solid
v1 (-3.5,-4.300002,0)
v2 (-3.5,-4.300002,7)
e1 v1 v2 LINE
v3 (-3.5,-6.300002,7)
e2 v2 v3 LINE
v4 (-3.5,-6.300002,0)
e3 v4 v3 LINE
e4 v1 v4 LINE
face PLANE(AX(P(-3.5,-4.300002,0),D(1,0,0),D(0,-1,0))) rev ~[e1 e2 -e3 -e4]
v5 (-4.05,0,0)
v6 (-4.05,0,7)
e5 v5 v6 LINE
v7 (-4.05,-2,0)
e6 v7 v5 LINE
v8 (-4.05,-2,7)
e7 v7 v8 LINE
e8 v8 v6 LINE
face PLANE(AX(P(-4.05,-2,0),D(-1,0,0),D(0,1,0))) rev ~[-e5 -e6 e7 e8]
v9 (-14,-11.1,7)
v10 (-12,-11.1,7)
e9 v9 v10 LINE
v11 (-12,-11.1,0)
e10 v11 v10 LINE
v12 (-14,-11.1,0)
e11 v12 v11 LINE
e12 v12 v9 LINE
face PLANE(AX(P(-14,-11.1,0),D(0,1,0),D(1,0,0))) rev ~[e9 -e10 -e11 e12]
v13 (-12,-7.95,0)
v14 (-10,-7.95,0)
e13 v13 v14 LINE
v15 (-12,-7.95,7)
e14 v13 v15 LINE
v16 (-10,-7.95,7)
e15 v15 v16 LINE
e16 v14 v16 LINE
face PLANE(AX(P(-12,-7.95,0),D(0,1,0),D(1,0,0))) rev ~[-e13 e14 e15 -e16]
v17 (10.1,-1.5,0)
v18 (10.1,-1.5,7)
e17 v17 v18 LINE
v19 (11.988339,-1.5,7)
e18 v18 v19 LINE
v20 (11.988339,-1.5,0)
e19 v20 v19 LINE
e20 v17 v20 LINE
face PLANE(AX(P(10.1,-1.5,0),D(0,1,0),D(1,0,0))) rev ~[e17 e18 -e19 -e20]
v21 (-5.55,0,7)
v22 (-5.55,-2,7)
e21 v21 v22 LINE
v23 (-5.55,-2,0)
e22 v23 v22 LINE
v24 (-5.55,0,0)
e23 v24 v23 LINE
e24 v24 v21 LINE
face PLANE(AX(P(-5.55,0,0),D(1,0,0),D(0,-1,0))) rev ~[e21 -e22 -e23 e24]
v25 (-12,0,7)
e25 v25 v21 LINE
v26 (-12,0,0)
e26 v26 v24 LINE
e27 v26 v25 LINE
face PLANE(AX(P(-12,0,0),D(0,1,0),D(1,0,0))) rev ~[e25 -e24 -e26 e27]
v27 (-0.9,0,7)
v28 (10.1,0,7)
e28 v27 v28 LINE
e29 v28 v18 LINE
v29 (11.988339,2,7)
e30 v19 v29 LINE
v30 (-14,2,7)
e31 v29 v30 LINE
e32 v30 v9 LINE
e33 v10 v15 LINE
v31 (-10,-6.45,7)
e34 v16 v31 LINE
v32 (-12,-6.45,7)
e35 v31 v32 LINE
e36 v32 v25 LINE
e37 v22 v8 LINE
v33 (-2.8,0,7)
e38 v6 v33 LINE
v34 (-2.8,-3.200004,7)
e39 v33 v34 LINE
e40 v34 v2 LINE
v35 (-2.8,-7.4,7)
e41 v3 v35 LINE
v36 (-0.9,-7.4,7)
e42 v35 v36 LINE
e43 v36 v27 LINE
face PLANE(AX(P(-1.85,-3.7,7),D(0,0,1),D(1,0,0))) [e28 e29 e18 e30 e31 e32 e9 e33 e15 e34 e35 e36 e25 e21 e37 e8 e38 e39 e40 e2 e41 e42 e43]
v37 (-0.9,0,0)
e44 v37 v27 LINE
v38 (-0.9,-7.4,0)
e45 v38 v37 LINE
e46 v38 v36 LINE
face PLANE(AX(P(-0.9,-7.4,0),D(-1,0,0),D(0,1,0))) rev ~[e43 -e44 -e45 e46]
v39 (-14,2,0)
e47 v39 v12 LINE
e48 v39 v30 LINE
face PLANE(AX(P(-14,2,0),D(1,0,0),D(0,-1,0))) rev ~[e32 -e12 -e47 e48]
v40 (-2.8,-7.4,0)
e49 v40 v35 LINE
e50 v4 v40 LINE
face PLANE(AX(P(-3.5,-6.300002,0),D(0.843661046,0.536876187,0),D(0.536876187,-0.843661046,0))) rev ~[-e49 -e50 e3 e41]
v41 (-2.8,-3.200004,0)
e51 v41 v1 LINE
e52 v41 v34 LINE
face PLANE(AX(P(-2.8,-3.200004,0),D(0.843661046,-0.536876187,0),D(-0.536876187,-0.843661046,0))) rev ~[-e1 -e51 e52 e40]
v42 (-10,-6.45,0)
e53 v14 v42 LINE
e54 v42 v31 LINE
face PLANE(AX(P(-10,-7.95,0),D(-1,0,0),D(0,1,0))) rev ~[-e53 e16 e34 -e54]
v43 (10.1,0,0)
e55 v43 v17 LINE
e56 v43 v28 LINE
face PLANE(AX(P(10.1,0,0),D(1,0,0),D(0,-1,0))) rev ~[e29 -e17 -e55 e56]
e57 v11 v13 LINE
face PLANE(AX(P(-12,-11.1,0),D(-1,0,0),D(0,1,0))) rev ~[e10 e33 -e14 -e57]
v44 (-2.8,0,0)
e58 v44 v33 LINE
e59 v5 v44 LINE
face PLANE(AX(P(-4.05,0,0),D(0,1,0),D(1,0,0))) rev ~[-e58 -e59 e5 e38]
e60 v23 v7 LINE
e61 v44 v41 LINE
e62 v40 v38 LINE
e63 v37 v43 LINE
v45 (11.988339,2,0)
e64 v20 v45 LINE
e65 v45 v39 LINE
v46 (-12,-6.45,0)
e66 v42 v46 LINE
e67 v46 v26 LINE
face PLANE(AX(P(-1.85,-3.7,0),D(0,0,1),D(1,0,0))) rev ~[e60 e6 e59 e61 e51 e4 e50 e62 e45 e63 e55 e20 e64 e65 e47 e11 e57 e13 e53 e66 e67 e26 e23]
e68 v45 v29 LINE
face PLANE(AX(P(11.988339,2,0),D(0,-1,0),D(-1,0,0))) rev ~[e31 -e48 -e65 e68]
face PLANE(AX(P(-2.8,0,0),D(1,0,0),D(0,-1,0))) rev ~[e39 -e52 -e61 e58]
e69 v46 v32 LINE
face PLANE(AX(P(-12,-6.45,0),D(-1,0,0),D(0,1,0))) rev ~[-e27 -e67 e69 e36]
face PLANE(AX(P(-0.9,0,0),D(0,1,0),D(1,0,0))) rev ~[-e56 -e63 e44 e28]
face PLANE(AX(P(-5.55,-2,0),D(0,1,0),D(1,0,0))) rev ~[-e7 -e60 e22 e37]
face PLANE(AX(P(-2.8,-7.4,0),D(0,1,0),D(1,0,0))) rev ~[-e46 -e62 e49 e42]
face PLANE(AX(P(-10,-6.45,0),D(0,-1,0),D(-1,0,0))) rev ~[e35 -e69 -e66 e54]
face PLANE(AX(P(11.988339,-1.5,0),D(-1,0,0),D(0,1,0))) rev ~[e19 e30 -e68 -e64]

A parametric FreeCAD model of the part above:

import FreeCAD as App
import Part
import Sketcher

V = App.Vector
Q = App.Units.Quantity

doc = App.newDocument("Part")
body = doc.addObject("PartDesign::Body", "Body")

# Sketch on XY plane
sketch1 = body.newObject("Sketcher::SketchObject", "Sketch")
sketch1.AttachmentSupport = (doc.getObject("XY_Plane"), [""])
sketch1.MapMode = "FlatFace"
sketch1.addGeometry(Part.LineSegment(V(-0.9, -7.4, 0), V(-0.9, 0, 0)), False)
sketch1.addGeometry(Part.LineSegment(V(-0.9, 0, 0), V(10.1, 0, 0)), False)
sketch1.addGeometry(Part.LineSegment(V(10.1, 0, 0), V(10.1, -1.5, 0)), False)
sketch1.addGeometry(Part.LineSegment(V(10.1, -1.5, 0), V(12, -1.5, 0)), False)
sketch1.addGeometry(Part.LineSegment(V(12, -1.5, 0), V(12, 2, 0)), False)
sketch1.addGeometry(Part.LineSegment(V(12, 2, 0), V(-14, 2, 0)), False)
sketch1.addGeometry(Part.LineSegment(V(-14, 2, 0), V(-14, -11.1, 0)), False)
sketch1.addGeometry(Part.LineSegment(V(-14, -11.1, 0), V(-12, -11.1, 0)), False)
sketch1.addGeometry(Part.LineSegment(V(-12, -11.1, 0), V(-12, -8, 0)), False)
sketch1.addGeometry(Part.LineSegment(V(-12, -8, 0), V(-10, -8, 0)), False)
sketch1.addGeometry(Part.LineSegment(V(-10, -8, 0), V(-10, -6.5, 0)), False)
sketch1.addGeometry(Part.LineSegment(V(-10, -6.5, 0), V(-12, -6.5, 0)), False)
sketch1.addGeometry(Part.LineSegment(V(-12, -6.5, 0), V(-12, 0, 0)), False)
sketch1.addGeometry(Part.LineSegment(V(-12, 0, 0), V(-5.5, 0, 0)), False)
sketch1.addGeometry(Part.LineSegment(V(-5.5, 0, 0), V(-5.5, -2, 0)), False)
sketch1.addGeometry(Part.LineSegment(V(-5.5, -2, 0), V(-4, -2, 0)), False)
sketch1.addGeometry(Part.LineSegment(V(-4, -2, 0), V(-4, 0, 0)), False)
sketch1.addGeometry(Part.LineSegment(V(-4, 0, 0), V(-2.8, 0, 0)), False)
sketch1.addGeometry(Part.LineSegment(V(-2.8, 0, 0), V(-2.8, -3.2, 0)), False)
sketch1.addGeometry(Part.LineSegment(V(-2.8, -3.2, 0), V(-3.5, -4.3, 0)), False)
sketch1.addGeometry(Part.LineSegment(V(-3.5, -4.3, 0), V(-3.5, -6.3, 0)), False)
sketch1.addGeometry(Part.LineSegment(V(-3.5, -6.3, 0), V(-2.8, -7.4, 0)), False)
sketch1.addGeometry(Part.LineSegment(V(-2.8, -7.4, 0), V(-0.9, -7.4, 0)), False)
sketch1.addConstraint(Sketcher.Constraint("Coincident", 0, 2, 1, 1))
sketch1.addConstraint(Sketcher.Constraint("Coincident", 1, 2, 2, 1))
sketch1.addConstraint(Sketcher.Constraint("Coincident", 2, 2, 3, 1))
sketch1.addConstraint(Sketcher.Constraint("Coincident", 3, 2, 4, 1))
sketch1.addConstraint(Sketcher.Constraint("Coincident", 4, 2, 5, 1))
sketch1.addConstraint(Sketcher.Constraint("Coincident", 5, 2, 6, 1))
sketch1.addConstraint(Sketcher.Constraint("Coincident", 6, 2, 7, 1))
sketch1.addConstraint(Sketcher.Constraint("Coincident", 7, 2, 8, 1))
sketch1.addConstraint(Sketcher.Constraint("Coincident", 8, 2, 9, 1))
sketch1.addConstraint(Sketcher.Constraint("Coincident", 9, 2, 10, 1))
sketch1.addConstraint(Sketcher.Constraint("Coincident", 10, 2, 11, 1))
sketch1.addConstraint(Sketcher.Constraint("Coincident", 11, 2, 12, 1))
sketch1.addConstraint(Sketcher.Constraint("Coincident", 12, 2, 13, 1))
sketch1.addConstraint(Sketcher.Constraint("Coincident", 13, 2, 14, 1))
sketch1.addConstraint(Sketcher.Constraint("Coincident", 14, 2, 15, 1))
sketch1.addConstraint(Sketcher.Constraint("Coincident", 15, 2, 16, 1))
sketch1.addConstraint(Sketcher.Constraint("Coincident", 16, 2, 17, 1))
sketch1.addConstraint(Sketcher.Constraint("Coincident", 17, 2, 18, 1))
sketch1.addConstraint(Sketcher.Constraint("Coincident", 18, 2, 19, 1))
sketch1.addConstraint(Sketcher.Constraint("Coincident", 19, 2, 20, 1))
sketch1.addConstraint(Sketcher.Constraint("Coincident", 20, 2, 21, 1))
sketch1.addConstraint(Sketcher.Constraint("Coincident", 21, 2, 22, 1))
sketch1.addConstraint(Sketcher.Constraint("Coincident", 22, 2, 0, 1))
sketch1.addConstraint(Sketcher.Constraint("Vertical", 0))
sketch1.addConstraint(Sketcher.Constraint("Horizontal", 1))
sketch1.addConstraint(Sketcher.Constraint("Vertical", 2))
sketch1.addConstraint(Sketcher.Constraint("Horizontal", 3))
sketch1.addConstraint(Sketcher.Constraint("Vertical", 4))
sketch1.addConstraint(Sketcher.Constraint("Horizontal", 5))
sketch1.addConstraint(Sketcher.Constraint("Vertical", 6))
sketch1.addConstraint(Sketcher.Constraint("Horizontal", 7))
sketch1.addConstraint(Sketcher.Constraint("Vertical", 8))
sketch1.addConstraint(Sketcher.Constraint("Horizontal", 9))
sketch1.addConstraint(Sketcher.Constraint("Vertical", 10))
sketch1.addConstraint(Sketcher.Constraint("Horizontal", 11))
sketch1.addConstraint(Sketcher.Constraint("Vertical", 12))
sketch1.addConstraint(Sketcher.Constraint("Horizontal", 13))
sketch1.addConstraint(Sketcher.Constraint("Vertical", 14))
sketch1.addConstraint(Sketcher.Constraint("Horizontal", 15))
sketch1.addConstraint(Sketcher.Constraint("Vertical", 16))
sketch1.addConstraint(Sketcher.Constraint("Horizontal", 17))
sketch1.addConstraint(Sketcher.Constraint("Vertical", 18))
sketch1.addConstraint(Sketcher.Constraint("Vertical", 20))
sketch1.addConstraint(Sketcher.Constraint("Horizontal", 22))
sketch1.addConstraint(Sketcher.Constraint("PointOnObject", 0, 2, -1))
sketch1.addConstraint(Sketcher.Constraint("PointOnObject", 12, 2, -1))
sketch1.addConstraint(Sketcher.Constraint("PointOnObject", 16, 2, -1))
sketch1.addConstraint(Sketcher.Constraint("Vertical", 8, 2, 11, 2))
sketch1.addConstraint(Sketcher.Constraint("Vertical", 18, 2, 21, 2))
sketch1.addConstraint(Sketcher.Constraint("Equal", 7, 9))
sketch1.addConstraint(Sketcher.Constraint("Equal", 15, 2))
sketch1.addConstraint(Sketcher.Constraint("Equal", 2, 10))
sketch1.addConstraint(Sketcher.Constraint("Equal", 13, 12))
sketch1.addConstraint(Sketcher.Constraint("Equal", 11, 14))
sketch1.addConstraint(Sketcher.Constraint("Equal", 16, 20))
sketch1.addConstraint(Sketcher.Constraint("Equal", 19, 21))
sketch1.addConstraint(Sketcher.Constraint("DistanceX", 1, 1, 1, 2, Q("11 mm")))
sketch1.addConstraint(Sketcher.Constraint("DistanceX", 7, 1, 7, 2, Q("2 mm")))
sketch1.addConstraint(Sketcher.Constraint("DistanceX", 15, 1, 15, 2, Q("1.5 mm")))
sketch1.addConstraint(Sketcher.Constraint("DistanceX", 22, 1, 22, 2, Q("1.9 mm")))
sketch1.addConstraint(Sketcher.Constraint("DistanceY", 0, 1, 0, 2, Q("7.4 mm")))
sketch1.addConstraint(Sketcher.Constraint("DistanceY", 4, 1, 4, 2, Q("3.5 mm")))
sketch1.addConstraint(Sketcher.Constraint("DistanceY", 6, 2, 6, 1, Q("13.1 mm")))
sketch1.addConstraint(Sketcher.Constraint("DistanceX", 5, 2, -1, 1, Q("14 mm")))
sketch1.addConstraint(Sketcher.Constraint("DistanceX", 13, 1, 13, 2, Q("6.45 mm")))
sketch1.addConstraint(Sketcher.Constraint("DistanceX", 17, 1, 17, 2, Q("1.25 mm")))
sketch1.addConstraint(Sketcher.Constraint("DistanceX", 19, 2, -1, 1, Q("3.5 mm")))
sketch1.addConstraint(Sketcher.Constraint("DistanceY", 19, 2, 18, 2, Q("1.099998 mm")))
sketch1.addConstraint(Sketcher.Constraint("DistanceX", 3, 1, 3, 2, Q("1.888339 mm")))
pad1 = body.newObject("PartDesign::Pad", "Pad")
pad1.Profile = sketch1
pad1.Length = 7

doc.recompute()
